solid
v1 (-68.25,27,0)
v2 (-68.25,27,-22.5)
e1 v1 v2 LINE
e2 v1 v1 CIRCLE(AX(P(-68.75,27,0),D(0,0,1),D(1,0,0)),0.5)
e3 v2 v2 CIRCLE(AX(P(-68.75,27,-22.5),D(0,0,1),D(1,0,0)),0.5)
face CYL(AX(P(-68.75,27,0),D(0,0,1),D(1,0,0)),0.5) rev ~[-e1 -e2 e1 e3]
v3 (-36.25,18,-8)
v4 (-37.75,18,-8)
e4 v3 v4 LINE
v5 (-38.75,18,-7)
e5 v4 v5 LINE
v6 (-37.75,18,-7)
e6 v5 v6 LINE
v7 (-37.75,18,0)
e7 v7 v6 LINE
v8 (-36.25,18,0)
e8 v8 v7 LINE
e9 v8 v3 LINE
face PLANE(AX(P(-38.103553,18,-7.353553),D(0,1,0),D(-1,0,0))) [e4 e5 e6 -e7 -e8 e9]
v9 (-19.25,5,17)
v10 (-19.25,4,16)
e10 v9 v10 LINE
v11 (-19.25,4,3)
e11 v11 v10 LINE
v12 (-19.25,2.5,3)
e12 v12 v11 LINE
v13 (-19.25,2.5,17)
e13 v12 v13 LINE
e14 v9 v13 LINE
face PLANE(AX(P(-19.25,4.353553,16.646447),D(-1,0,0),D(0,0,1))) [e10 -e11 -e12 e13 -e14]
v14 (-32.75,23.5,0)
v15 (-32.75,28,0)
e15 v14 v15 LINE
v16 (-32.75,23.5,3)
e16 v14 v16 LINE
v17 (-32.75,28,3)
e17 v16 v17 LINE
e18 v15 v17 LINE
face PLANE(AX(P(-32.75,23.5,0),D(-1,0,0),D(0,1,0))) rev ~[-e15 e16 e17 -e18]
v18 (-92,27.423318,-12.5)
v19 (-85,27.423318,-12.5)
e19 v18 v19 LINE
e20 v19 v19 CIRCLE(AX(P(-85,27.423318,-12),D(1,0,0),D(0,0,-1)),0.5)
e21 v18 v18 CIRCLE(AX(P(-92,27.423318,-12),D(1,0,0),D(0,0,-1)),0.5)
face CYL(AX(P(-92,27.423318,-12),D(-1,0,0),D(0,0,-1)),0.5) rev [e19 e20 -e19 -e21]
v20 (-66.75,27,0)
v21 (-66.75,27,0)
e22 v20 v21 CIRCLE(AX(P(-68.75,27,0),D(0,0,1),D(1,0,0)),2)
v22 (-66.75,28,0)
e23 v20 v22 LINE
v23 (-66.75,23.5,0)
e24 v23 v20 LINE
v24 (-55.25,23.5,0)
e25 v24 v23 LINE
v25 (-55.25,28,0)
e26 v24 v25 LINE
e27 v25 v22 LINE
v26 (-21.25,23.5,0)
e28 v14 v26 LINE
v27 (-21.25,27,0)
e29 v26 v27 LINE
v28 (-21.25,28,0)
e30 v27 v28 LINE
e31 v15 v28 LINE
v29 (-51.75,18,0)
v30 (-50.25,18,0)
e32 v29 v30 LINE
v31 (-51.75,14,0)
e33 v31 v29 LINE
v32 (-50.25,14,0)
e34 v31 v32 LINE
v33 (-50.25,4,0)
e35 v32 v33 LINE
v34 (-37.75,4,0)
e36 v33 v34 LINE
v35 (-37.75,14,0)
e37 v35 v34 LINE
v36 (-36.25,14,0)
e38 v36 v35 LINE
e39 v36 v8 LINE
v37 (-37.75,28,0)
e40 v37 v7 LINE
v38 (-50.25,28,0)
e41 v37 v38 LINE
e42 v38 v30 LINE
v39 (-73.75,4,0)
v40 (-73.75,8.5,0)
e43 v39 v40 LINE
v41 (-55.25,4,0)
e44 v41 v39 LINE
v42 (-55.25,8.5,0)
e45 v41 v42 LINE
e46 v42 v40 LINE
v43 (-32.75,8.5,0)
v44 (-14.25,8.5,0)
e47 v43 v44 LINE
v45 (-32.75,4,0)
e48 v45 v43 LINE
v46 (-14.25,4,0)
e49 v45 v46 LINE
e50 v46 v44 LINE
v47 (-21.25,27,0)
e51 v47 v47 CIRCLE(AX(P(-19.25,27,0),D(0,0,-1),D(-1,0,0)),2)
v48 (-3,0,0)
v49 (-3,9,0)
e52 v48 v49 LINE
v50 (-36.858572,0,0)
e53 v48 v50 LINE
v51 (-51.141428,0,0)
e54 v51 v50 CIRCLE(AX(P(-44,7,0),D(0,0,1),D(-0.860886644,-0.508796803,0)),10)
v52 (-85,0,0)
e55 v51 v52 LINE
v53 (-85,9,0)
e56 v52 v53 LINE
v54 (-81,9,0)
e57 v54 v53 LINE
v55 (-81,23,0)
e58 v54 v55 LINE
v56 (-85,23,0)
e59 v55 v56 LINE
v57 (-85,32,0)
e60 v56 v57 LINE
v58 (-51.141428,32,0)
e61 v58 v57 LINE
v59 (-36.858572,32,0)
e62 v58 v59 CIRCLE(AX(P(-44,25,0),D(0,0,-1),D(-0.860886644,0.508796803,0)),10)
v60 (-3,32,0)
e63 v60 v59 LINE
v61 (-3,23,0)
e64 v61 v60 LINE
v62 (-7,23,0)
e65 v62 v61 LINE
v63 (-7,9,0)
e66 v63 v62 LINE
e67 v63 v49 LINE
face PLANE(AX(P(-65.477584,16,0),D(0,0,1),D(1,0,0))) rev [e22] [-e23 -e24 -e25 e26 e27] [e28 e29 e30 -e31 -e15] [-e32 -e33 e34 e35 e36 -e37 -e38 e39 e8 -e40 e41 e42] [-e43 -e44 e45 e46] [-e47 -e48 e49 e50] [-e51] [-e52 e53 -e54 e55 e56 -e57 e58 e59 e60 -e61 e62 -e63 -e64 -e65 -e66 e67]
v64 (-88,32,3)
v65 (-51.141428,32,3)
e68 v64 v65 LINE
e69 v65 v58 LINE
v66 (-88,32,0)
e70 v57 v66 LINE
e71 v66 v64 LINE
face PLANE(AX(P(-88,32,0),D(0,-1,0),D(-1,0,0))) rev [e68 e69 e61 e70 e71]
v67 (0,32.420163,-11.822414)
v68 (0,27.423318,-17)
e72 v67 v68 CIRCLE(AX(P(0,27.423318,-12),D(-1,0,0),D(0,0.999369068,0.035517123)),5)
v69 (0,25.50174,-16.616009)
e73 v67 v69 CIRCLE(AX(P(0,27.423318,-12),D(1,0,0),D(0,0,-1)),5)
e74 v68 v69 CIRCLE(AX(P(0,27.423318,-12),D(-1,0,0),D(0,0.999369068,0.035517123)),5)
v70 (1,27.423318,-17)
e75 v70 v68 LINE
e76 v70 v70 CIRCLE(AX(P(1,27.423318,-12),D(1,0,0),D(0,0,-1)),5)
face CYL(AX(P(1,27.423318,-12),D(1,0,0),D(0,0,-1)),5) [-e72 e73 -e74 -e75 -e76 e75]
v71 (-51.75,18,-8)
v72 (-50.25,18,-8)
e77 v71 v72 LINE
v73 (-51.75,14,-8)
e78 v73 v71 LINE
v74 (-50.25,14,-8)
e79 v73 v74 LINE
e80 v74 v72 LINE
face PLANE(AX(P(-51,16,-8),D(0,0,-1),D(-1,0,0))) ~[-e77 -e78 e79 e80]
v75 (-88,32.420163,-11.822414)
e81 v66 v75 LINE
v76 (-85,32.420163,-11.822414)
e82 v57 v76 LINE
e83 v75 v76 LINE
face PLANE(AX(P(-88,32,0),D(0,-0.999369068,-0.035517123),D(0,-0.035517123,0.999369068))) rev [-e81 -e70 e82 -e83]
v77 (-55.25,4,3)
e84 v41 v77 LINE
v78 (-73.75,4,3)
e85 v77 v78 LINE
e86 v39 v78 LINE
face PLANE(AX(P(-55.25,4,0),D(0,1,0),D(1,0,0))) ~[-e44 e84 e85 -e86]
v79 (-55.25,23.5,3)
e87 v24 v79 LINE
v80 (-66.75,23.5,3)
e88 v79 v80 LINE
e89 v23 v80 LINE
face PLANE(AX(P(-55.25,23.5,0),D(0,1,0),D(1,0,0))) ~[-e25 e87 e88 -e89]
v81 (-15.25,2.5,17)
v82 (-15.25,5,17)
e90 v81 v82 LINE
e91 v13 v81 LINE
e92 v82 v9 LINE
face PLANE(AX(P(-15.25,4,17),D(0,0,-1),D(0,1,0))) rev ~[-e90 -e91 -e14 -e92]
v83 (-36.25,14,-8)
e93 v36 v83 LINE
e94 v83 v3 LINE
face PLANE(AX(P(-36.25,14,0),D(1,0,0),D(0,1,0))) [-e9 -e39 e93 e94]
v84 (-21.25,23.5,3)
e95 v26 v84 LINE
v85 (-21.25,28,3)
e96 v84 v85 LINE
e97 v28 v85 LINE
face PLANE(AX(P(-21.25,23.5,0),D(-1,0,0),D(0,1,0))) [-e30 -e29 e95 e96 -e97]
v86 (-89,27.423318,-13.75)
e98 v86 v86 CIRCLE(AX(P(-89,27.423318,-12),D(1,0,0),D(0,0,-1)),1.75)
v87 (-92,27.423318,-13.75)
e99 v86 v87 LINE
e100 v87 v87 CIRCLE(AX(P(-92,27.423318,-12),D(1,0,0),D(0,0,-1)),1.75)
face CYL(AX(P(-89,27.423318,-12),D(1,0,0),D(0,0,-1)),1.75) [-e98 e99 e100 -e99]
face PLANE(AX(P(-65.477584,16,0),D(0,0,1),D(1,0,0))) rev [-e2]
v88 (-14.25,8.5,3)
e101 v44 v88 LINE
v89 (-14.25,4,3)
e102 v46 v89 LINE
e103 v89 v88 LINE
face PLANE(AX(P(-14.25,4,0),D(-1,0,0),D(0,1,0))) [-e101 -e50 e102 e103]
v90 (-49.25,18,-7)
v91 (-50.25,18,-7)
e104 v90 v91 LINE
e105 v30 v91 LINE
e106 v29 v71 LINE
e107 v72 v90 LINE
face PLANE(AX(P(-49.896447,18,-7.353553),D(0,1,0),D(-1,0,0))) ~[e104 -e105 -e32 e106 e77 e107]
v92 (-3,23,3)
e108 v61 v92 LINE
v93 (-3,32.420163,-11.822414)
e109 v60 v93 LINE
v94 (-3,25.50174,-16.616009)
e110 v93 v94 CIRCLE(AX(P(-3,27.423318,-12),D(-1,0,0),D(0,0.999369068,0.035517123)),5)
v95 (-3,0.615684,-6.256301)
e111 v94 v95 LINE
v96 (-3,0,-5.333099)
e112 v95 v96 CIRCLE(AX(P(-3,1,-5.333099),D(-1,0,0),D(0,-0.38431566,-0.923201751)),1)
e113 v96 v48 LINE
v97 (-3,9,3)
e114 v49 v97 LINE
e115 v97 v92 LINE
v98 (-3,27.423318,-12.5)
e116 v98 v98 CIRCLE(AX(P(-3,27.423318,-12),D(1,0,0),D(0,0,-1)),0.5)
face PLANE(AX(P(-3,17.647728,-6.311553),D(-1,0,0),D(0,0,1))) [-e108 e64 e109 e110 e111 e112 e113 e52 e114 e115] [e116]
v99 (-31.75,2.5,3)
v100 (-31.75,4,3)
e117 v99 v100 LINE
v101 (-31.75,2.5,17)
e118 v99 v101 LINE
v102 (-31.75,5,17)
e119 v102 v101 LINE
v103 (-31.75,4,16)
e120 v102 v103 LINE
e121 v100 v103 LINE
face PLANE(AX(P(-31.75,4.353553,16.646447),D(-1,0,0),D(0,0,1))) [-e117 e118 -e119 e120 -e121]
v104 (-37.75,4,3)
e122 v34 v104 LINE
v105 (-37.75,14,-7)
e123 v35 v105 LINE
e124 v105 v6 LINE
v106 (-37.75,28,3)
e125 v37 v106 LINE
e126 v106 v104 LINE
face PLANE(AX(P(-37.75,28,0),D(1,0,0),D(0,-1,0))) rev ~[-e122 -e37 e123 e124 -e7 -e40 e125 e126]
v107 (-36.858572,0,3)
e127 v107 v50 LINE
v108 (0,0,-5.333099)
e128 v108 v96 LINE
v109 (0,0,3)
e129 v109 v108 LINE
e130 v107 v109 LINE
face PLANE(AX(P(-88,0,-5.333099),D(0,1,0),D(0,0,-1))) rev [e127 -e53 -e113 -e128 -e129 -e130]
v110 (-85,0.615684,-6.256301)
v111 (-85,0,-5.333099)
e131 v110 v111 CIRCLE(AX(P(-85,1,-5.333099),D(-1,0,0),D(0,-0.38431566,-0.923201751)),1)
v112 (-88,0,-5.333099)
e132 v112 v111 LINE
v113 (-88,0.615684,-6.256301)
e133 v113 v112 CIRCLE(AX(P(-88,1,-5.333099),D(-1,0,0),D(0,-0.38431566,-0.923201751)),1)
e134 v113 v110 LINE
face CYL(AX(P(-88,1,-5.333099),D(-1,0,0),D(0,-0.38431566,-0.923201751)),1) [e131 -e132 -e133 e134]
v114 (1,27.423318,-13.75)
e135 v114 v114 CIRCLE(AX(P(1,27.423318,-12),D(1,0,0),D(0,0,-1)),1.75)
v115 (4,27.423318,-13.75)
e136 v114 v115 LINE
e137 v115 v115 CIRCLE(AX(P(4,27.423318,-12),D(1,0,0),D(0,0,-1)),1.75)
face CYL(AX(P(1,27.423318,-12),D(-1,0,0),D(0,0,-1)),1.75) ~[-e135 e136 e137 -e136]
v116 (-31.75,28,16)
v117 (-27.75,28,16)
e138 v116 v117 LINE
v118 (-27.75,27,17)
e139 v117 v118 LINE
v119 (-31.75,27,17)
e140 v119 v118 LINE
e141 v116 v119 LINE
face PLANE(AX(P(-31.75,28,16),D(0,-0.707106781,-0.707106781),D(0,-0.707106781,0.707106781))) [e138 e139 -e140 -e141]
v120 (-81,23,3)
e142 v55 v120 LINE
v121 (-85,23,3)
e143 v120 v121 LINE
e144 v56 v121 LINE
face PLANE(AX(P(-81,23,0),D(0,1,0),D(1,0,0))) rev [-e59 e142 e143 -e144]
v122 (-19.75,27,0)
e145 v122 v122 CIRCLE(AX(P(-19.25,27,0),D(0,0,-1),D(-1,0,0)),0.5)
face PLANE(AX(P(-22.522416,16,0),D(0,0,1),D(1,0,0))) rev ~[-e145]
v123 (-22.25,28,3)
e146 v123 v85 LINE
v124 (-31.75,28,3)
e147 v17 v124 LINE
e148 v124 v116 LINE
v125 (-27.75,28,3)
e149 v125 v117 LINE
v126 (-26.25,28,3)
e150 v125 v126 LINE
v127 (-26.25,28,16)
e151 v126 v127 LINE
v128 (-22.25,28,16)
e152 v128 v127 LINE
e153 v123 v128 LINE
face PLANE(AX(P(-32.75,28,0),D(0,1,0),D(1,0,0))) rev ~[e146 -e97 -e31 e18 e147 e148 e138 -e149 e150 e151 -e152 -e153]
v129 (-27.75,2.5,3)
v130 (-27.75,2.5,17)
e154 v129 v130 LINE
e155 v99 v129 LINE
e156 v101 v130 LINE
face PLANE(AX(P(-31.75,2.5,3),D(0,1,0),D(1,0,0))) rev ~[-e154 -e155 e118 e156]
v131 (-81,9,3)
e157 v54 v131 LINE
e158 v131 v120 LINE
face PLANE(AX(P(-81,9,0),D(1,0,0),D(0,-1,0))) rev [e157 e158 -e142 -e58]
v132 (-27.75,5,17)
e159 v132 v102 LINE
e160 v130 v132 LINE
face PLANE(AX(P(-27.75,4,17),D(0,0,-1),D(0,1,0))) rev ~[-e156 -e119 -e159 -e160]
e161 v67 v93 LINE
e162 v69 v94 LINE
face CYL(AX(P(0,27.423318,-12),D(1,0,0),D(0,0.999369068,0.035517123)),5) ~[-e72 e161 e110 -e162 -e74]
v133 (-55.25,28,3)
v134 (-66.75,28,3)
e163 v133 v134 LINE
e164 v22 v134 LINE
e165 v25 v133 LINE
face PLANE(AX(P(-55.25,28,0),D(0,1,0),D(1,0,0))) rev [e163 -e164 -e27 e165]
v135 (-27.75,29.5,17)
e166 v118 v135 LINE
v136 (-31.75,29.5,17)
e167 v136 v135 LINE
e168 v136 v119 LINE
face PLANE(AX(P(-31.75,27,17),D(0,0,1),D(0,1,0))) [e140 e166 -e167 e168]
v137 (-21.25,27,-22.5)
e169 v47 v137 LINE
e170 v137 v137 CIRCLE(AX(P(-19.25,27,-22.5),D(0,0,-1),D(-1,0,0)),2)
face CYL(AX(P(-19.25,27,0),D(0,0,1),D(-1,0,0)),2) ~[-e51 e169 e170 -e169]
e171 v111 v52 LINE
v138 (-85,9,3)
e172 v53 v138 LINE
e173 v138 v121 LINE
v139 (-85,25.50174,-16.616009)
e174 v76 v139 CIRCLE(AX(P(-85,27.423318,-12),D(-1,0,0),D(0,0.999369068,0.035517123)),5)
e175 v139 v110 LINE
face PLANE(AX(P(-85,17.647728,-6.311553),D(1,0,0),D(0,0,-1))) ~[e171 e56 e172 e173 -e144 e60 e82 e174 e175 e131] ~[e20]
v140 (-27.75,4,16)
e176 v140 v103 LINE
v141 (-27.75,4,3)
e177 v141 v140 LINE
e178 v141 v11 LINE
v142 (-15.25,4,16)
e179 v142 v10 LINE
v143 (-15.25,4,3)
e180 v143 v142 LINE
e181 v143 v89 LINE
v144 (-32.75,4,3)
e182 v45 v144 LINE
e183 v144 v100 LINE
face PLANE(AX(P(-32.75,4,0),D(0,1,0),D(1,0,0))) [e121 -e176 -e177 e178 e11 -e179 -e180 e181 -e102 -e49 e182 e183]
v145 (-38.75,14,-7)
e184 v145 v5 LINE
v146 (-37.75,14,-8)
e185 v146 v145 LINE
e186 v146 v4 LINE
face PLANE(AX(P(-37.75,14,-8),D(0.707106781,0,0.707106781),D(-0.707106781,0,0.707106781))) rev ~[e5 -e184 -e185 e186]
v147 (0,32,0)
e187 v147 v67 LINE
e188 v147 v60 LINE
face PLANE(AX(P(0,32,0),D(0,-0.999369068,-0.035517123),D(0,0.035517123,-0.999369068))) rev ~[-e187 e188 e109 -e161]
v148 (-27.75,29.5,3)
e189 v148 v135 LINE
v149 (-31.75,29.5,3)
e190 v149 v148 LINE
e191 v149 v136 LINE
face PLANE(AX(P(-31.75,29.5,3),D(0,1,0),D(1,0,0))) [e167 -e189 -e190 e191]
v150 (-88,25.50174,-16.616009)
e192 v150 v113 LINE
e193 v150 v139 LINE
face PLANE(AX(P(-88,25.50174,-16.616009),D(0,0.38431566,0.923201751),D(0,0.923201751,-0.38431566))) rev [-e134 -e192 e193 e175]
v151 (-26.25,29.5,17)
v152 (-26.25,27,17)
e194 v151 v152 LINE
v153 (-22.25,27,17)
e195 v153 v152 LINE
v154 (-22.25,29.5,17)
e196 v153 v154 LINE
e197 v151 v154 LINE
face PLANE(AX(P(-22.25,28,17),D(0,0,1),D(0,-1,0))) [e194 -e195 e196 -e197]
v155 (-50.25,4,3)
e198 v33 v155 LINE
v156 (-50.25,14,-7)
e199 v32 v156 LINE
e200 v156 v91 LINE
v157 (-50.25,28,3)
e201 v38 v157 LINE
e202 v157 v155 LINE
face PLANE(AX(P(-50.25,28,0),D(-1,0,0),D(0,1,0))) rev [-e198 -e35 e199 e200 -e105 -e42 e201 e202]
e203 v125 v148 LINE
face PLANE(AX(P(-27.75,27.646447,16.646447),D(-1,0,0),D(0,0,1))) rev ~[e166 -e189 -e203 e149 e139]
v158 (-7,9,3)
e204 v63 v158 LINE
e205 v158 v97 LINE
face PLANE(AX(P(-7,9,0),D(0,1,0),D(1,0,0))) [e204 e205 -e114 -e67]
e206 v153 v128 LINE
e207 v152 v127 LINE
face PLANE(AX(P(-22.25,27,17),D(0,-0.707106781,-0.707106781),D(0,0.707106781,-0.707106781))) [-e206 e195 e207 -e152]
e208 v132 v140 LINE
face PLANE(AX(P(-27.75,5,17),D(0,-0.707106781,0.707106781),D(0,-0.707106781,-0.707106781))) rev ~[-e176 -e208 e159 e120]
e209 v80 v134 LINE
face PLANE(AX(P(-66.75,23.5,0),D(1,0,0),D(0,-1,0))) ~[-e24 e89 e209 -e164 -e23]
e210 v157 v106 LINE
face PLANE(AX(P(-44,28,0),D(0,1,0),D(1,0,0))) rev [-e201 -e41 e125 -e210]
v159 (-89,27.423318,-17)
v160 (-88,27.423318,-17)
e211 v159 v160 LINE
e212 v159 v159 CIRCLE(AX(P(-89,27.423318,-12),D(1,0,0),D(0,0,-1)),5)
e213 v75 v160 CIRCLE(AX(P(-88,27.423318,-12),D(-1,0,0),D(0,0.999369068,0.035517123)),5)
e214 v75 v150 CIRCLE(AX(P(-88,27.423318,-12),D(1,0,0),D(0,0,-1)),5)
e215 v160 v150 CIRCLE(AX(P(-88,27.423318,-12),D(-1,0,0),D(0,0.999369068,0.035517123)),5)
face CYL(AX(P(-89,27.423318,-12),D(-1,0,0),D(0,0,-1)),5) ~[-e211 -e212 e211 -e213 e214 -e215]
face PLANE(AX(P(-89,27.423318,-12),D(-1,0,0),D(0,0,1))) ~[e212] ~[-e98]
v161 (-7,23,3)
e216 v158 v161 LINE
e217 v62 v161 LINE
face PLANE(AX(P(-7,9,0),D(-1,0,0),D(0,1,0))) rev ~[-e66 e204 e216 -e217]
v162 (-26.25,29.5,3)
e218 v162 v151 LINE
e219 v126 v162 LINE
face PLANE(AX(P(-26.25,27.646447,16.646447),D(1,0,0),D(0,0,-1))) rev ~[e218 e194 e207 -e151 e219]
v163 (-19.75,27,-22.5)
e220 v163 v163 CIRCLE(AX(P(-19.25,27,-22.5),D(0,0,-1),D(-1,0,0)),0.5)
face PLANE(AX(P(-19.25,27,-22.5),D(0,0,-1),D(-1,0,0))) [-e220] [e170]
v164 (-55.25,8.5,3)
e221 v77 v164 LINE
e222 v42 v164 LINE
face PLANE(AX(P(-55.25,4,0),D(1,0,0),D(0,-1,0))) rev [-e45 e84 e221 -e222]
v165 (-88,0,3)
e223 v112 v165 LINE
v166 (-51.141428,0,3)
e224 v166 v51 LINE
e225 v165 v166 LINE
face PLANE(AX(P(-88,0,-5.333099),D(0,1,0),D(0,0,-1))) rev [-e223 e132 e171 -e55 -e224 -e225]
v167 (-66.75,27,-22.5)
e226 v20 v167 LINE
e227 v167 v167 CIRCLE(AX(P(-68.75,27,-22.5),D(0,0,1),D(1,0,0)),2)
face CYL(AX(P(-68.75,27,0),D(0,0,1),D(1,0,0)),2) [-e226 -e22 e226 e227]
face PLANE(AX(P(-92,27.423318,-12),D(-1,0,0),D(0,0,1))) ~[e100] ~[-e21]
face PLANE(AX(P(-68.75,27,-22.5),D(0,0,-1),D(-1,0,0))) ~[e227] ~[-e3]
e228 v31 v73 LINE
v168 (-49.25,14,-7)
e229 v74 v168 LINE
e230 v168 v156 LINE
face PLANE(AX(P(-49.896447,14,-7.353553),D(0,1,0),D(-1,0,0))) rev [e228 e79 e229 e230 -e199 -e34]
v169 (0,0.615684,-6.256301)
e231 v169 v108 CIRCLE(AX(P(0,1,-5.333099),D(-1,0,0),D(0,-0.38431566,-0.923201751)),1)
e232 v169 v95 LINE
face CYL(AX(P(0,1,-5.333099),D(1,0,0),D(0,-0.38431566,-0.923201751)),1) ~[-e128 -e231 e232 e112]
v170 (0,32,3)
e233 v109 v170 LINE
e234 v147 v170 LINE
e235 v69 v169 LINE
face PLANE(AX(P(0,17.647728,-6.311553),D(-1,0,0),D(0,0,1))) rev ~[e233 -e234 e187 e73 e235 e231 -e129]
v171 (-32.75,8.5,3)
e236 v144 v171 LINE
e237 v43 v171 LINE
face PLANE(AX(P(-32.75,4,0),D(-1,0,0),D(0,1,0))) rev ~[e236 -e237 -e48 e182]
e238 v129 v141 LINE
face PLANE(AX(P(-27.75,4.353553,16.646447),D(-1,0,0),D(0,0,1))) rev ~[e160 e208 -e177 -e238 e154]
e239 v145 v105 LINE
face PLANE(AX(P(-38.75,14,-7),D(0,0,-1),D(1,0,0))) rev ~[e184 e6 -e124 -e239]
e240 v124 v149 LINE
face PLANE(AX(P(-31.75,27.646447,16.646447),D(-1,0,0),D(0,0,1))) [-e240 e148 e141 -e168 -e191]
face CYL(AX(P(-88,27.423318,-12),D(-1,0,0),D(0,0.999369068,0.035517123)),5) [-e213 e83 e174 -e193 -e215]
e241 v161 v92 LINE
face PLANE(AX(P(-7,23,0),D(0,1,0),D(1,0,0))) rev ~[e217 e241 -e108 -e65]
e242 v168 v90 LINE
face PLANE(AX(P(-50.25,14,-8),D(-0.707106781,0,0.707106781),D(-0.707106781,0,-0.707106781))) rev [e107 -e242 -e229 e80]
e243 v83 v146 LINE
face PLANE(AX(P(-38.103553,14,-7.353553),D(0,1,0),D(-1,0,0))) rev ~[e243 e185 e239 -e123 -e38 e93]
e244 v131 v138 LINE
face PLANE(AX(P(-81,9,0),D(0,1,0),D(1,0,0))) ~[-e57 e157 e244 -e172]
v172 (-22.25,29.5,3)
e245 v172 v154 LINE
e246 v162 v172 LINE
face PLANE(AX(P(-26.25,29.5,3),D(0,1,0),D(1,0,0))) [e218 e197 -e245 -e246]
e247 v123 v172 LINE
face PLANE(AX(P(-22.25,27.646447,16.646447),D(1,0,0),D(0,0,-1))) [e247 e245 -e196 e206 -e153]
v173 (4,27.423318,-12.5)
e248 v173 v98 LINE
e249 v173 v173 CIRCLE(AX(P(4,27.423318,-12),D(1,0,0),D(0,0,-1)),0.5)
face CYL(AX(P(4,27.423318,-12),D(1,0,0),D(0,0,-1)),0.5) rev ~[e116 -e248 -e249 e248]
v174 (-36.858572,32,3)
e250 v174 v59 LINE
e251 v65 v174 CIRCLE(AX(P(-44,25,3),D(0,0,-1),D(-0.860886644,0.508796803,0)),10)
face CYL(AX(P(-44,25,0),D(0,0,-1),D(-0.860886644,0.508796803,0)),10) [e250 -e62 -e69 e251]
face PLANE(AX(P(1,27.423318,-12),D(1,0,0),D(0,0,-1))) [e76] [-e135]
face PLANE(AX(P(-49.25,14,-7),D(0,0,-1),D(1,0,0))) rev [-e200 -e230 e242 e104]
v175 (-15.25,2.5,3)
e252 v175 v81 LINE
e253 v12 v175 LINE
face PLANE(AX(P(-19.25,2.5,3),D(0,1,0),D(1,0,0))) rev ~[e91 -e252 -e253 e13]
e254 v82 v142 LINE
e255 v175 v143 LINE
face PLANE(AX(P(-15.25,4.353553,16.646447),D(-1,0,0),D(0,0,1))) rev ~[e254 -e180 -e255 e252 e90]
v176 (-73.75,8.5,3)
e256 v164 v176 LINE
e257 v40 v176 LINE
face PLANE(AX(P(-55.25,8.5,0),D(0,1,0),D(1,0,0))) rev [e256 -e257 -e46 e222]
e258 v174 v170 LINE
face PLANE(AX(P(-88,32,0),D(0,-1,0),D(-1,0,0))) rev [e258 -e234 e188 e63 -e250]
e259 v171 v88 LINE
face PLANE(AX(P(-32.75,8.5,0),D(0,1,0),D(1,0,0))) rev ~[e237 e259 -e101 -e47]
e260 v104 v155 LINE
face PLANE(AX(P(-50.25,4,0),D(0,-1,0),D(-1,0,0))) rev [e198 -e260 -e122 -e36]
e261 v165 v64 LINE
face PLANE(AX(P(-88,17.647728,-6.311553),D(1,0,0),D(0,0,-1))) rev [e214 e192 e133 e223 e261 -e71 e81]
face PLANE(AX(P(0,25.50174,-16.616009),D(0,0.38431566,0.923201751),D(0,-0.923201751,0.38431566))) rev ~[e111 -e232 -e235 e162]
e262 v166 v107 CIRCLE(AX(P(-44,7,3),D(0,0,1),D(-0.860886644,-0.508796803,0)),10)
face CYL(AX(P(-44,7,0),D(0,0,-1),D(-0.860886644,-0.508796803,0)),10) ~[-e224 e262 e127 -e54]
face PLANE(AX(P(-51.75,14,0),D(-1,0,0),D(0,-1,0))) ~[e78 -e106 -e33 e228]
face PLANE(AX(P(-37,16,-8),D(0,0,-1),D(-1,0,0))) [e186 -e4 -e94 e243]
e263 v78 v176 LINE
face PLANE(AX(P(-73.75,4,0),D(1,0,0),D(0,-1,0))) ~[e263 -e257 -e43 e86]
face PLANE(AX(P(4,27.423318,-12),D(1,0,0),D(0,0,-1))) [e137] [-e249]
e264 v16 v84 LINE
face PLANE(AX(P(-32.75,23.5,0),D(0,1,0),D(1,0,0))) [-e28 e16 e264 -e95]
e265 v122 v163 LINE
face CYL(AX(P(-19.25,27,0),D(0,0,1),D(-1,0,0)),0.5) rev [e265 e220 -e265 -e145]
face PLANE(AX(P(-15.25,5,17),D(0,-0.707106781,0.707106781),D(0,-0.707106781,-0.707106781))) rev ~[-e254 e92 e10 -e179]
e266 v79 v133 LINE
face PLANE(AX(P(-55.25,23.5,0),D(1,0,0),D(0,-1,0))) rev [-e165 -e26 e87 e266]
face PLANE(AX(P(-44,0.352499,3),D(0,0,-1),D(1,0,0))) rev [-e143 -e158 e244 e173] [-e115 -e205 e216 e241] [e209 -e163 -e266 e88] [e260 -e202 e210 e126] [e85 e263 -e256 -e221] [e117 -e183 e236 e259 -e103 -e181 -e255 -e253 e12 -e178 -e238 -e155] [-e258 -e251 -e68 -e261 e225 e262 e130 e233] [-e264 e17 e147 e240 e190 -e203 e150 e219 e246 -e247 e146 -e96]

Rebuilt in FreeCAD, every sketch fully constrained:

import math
import FreeCAD as App
import Part
import Sketcher
from FreeCAD import Vector
Q = App.Units.Quantity

doc = App.newDocument("Part")
body = doc.addObject("PartDesign::Body", "Body")

# Sketch on XY plane
sketch1 = body.newObject("Sketcher::SketchObject", "Sketch")
sketch1.AttachmentSupport = (doc.getObject("XY_Plane"), [""])
sketch1.MapMode = "FlatFace"
sketch1.addGeometry(Part.LineSegment(Vector(-44, 32, 0), Vector(-44, 28, 0)), False)
sketch1.addGeometry(Part.LineSegment(Vector(-44, 28, 0), Vector(-37.75, 28, 0)), False)
sketch1.addGeometry(Part.LineSegment(Vector(-37.75, 28, 0), Vector(-37.75, 4, 0)), False)
sketch1.addGeometry(Part.LineSegment(Vector(-37.75, 4, 0), Vector(-44, 4, 0)), False)
sketch1.addGeometry(Part.LineSegment(Vector(-44, 4, 0), Vector(-44, 0, 0)), False)
sketch1.addGeometry(Part.LineSegment(Vector(-44, 0, 0), Vector(0, 0, 0)), False)
sketch1.addGeometry(Part.LineSegment(Vector(0, 0, 0), Vector(0, 32, 0)), False)
sketch1.addGeometry(Part.LineSegment(Vector(0, 32, 0), Vector(-44, 32, 0)), False)
sketch1.addGeometry(Part.LineSegment(Vector(-14.25, 4, 0), Vector(-32.75, 4, 0)), False)
sketch1.addGeometry(Part.LineSegment(Vector(-32.75, 4, 0), Vector(-32.75, 8.5, 0)), False)
sketch1.addGeometry(Part.LineSegment(Vector(-32.75, 8.5, 0), Vector(-14.25, 8.5, 0)), False)
sketch1.addGeometry(Part.LineSegment(Vector(-14.25, 8.5, 0), Vector(-14.25, 4, 0)), False)
sketch1.addGeometry(Part.LineSegment(Vector(-21.25, 23.5, 0), Vector(-32.75, 23.5, 0)), False)
sketch1.addGeometry(Part.LineSegment(Vector(-32.75, 23.5, 0), Vector(-32.75, 28, 0)), False)
sketch1.addGeometry(Part.LineSegment(Vector(-32.75, 28, 0), Vector(-21.25, 28, 0)), False)
sketch1.addGeometry(Part.LineSegment(Vector(-21.25, 28, 0), Vector(-21.25, 23.5, 0)), False)
sketch1.addGeometry(Part.LineSegment(Vector(-3, 9, 0), Vector(-7, 9, 0)), False)
sketch1.addGeometry(Part.LineSegment(Vector(-7, 9, 0), Vector(-7, 23, 0)), False)
sketch1.addGeometry(Part.LineSegment(Vector(-7, 23, 0), Vector(-3, 23, 0)), False)
sketch1.addGeometry(Part.LineSegment(Vector(-3, 23, 0), Vector(-3, 9, 0)), False)
sketch1.addConstraint(Sketcher.Constraint("Coincident", 0, 2, 1, 1))
sketch1.addConstraint(Sketcher.Constraint("Coincident", 1, 2, 2, 1))
sketch1.addConstraint(Sketcher.Constraint("Coincident", 2, 2, 3, 1))
sketch1.addConstraint(Sketcher.Constraint("Coincident", 3, 2, 4, 1))
sketch1.addConstraint(Sketcher.Constraint("Coincident", 4, 2, 5, 1))
sketch1.addConstraint(Sketcher.Constraint("Coincident", 5, 2, 6, 1))
sketch1.addConstraint(Sketcher.Constraint("Coincident", 6, 2, 7, 1))
sketch1.addConstraint(Sketcher.Constraint("Coincident", 7, 2, 0, 1))
sketch1.addConstraint(Sketcher.Constraint("Coincident", 8, 2, 9, 1))
sketch1.addConstraint(Sketcher.Constraint("Coincident", 9, 2, 10, 1))
sketch1.addConstraint(Sketcher.Constraint("Coincident", 10, 2, 11, 1))
sketch1.addConstraint(Sketcher.Constraint("Coincident", 11, 2, 8, 1))
sketch1.addConstraint(Sketcher.Constraint("Coincident", 12, 2, 13, 1))
sketch1.addConstraint(Sketcher.Constraint("Coincident", 13, 2, 14, 1))
sketch1.addConstraint(Sketcher.Constraint("Coincident", 14, 2, 15, 1))
sketch1.addConstraint(Sketcher.Constraint("Coincident", 15, 2, 12, 1))
sketch1.addConstraint(Sketcher.Constraint("Coincident", 16, 2, 17, 1))
sketch1.addConstraint(Sketcher.Constraint("Coincident", 17, 2, 18, 1))
sketch1.addConstraint(Sketcher.Constraint("Coincident", 18, 2, 19, 1))
sketch1.addConstraint(Sketcher.Constraint("Coincident", 19, 2, 16, 1))
sketch1.addConstraint(Sketcher.Constraint("Vertical", 0))
sketch1.addConstraint(Sketcher.Constraint("Horizontal", 1))
sketch1.addConstraint(Sketcher.Constraint("Vertical", 2))
sketch1.addConstraint(Sketcher.Constraint("Horizontal", 3))
sketch1.addConstraint(Sketcher.Constraint("Vertical", 4))
sketch1.addConstraint(Sketcher.Constraint("Horizontal", 5))
sketch1.addConstraint(Sketcher.Constraint("Vertical", 6))
sketch1.addConstraint(Sketcher.Constraint("Horizontal", 7))
sketch1.addConstraint(Sketcher.Constraint("Horizontal", 8))
sketch1.addConstraint(Sketcher.Constraint("Vertical", 9))
sketch1.addConstraint(Sketcher.Constraint("Horizontal", 10))
sketch1.addConstraint(Sketcher.Constraint("Vertical", 11))
sketch1.addConstraint(Sketcher.Constraint("Horizontal", 12))
sketch1.addConstraint(Sketcher.Constraint("Vertical", 13))
sketch1.addConstraint(Sketcher.Constraint("Horizontal", 14))
sketch1.addConstraint(Sketcher.Constraint("Vertical", 15))
sketch1.addConstraint(Sketcher.Constraint("Horizontal", 16))
sketch1.addConstraint(Sketcher.Constraint("Vertical", 17))
sketch1.addConstraint(Sketcher.Constraint("Horizontal", 18))
sketch1.addConstraint(Sketcher.Constraint("Vertical", 19))
sketch1.addConstraint(Sketcher.Constraint("Coincident", 5, 2, -1, 1))
sketch1.addConstraint(Sketcher.Constraint("Horizontal", 3, 2, 8, 2))
sketch1.addConstraint(Sketcher.Constraint("Horizontal", 1, 2, 13, 2))
sketch1.addConstraint(Sketcher.Constraint("Vertical", 0, 2, 3, 2))
sketch1.addConstraint(Sketcher.Constraint("Vertical", 9, 2, 12, 2))
sketch1.addConstraint(Sketcher.Constraint("Equal", 18, 0))
sketch1.addConstraint(Sketcher.Constraint("Equal", 0, 4))
sketch1.addConstraint(Sketcher.Constraint("Equal", 11, 13))
sketch1.addConstraint(Sketcher.Constraint("DistanceX", 5, 1, 5, 2, Q("44 mm")))
sketch1.addConstraint(Sketcher.Constraint("DistanceX", 16, 2, 16, 1, Q("4 mm")))
sketch1.addConstraint(Sketcher.Constraint("DistanceY", 2, 2, 2, 1, Q("24 mm")))
sketch1.addConstraint(Sketcher.Constraint("DistanceY", 17, 1, 17, 2, Q("14 mm")))
sketch1.addConstraint(Sketcher.Constraint("DistanceX", 8, 2, 8, 1, Q("18.5 mm")))
sketch1.addConstraint(Sketcher.Constraint("DistanceX", 12, 2, 12, 1, Q("11.5 mm")))
sketch1.addConstraint(Sketcher.Constraint("DistanceY", 9, 1, 9, 2, Q("4.5 mm")))
sketch1.addConstraint(Sketcher.Constraint("DistanceX", 16, 2, -1, 1, Q("7 mm")))
sketch1.addConstraint(Sketcher.Constraint("DistanceY", -1, 1, 16, 2, Q("9 mm")))
sketch1.addConstraint(Sketcher.Constraint("DistanceX", 2, 2, 8, 2, Q("5 mm")))
sketch1.addConstraint(Sketcher.Constraint("DistanceX", 1, 1, 1, 2, Q("6.25 mm")))
pad1 = body.newObject("PartDesign::Pad", "Pad")
pad1.Profile = sketch1
pad1.Length = 3

# Sketch on YZ plane
sketch2 = body.newObject("Sketcher::SketchObject", "Sketch001")
sketch2.AttachmentSupport = (doc.getObject("YZ_Plane"), [""])
sketch2.MapMode = "FlatFace"
sketch2.addGeometry(Part.LineSegment(Vector(32.420163, -11.822414, 0), Vector(32, 0, 0)), False)
sketch2.addGeometry(Part.LineSegment(Vector(32, 0, 0), Vector(0, 0, 0)), False)
sketch2.addGeometry(Part.LineSegment(Vector(0, 0, 0), Vector(0, -5.333099, 0)), False)
sketch2.addGeometry(Part.ArcOfCircle(Part.Circle(Vector(1, -5.333099, 0), Vector(0, 0, 1), 1), math.radians(-180), math.radians(-112.601262)), False)
sketch2.addGeometry(Part.LineSegment(Vector(0.615684, -6.256301, 0), Vector(25.50174, -16.616009, 0)), False)
sketch2.addGeometry(Part.ArcOfCircle(Part.Circle(Vector(27.423318, -12, 0), Vector(0, 0, 1), 5), math.radians(-112.601262), math.radians(2.035409)), False)
sketch2.addConstraint(Sketcher.Constraint("Coincident", 0, 2, 1, 1))
sketch2.addConstraint(Sketcher.Constraint("Coincident", 1, 2, 2, 1))
sketch2.addConstraint(Sketcher.Constraint("Coincident", 2, 2, 3, 1))
sketch2.addConstraint(Sketcher.Constraint("Coincident", 3, 2, 4, 1))
sketch2.addConstraint(Sketcher.Constraint("Coincident", 4, 2, 5, 1))
sketch2.addConstraint(Sketcher.Constraint("Coincident", 5, 2, 0, 1))
sketch2.addConstraint(Sketcher.Constraint("Horizontal", 1))
sketch2.addConstraint(Sketcher.Constraint("Vertical", 2))
sketch2.addConstraint(Sketcher.Constraint("Coincident", 1, 2, -1, 1))
sketch2.addConstraint(Sketcher.Constraint("Radius", 3, Q("1 mm")))
sketch2.addConstraint(Sketcher.Constraint("Radius", 5, Q("5 mm")))
sketch2.addConstraint(Sketcher.Constraint("DistanceX", 1, 2, 1, 1, Q("32 mm")))
sketch2.addConstraint(Sketcher.Constraint("DistanceY", 5, 3, -1, 1, Q("12 mm")))
sketch2.addConstraint(Sketcher.Constraint("DistanceY", 2, 2, 2, 1, Q("5.333099 mm")))
sketch2.addConstraint(Sketcher.Constraint("DistanceY", 3, 3, -1, 1, Q("5.333099 mm")))
sketch2.addConstraint(Sketcher.Constraint("DistanceY", 3, 2, -1, 1, Q("6.256301 mm")))
sketch2.addConstraint(Sketcher.Constraint("Distance", 0, Q("11.829878 mm")))
sketch2.addConstraint(Sketcher.Constraint("DistanceX", -1, 1, 4, 2, Q("25.50174 mm")))
sketch2.addConstraint(Sketcher.Constraint("DistanceY", 4, 2, -1, 1, Q("16.616009 mm")))
pad2 = body.newObject("PartDesign::Pad", "Pad001")
pad2.Profile = sketch2
pad2.Length = 3
pad2.Reversed = True

# Sketch on XY plane
sketch3 = body.newObject("Sketcher::SketchObject", "Sketch002")
sketch3.AttachmentSupport = (doc.getObject("XY_Plane"), [""])
sketch3.MapMode = "FlatFace"
sketch3.addGeometry(Part.Circle(Vector(-19.25, 27, 0), Vector(0, 0, 1), 2), False)
sketch3.addGeometry(Part.Circle(Vector(-19.25, 27, 0), Vector(0, 0, 1), 0.5), False)
sketch3.addConstraint(Sketcher.Constraint("Coincident", 1, 3, 0, 3))
sketch3.addConstraint(Sketcher.Constraint("Diameter", 0, Q("4 mm")))
sketch3.addConstraint(Sketcher.Constraint("Diameter", 1, Q("1 mm")))
sketch3.addConstraint(Sketcher.Constraint("DistanceY", -1, 1, 0, 3, Q("27 mm")))
sketch3.addConstraint(Sketcher.Constraint("DistanceX", 0, 3, -1, 1, Q("19.25 mm")))
pad3 = body.newObject("PartDesign::Pad", "Pad002")
pad3.Profile = sketch3
pad3.Length = 22.5
pad3.Reversed = True

# Sketch on YZ plane
sketch4 = body.newObject("Sketcher::SketchObject", "Sketch003")
sketch4.AttachmentSupport = (doc.getObject("YZ_Plane"), [""])
sketch4.MapMode = "FlatFace"
sketch4.AttachmentOffset = App.Placement(Vector(0, 0, 1), App.Rotation())
sketch4.addGeometry(Part.Circle(Vector(27.423318, -12, 0), Vector(0, 0, 1), 5), False)
sketch4.addConstraint(Sketcher.Constraint("Diameter", 0, Q("10 mm")))
sketch4.addConstraint(Sketcher.Constraint("DistanceY", 0, 3, -1, 1, Q("12 mm")))
sketch4.addConstraint(Sketcher.Constraint("DistanceX", -1, 1, 0, 3, Q("27.423318 mm")))
pad4 = body.newObject("PartDesign::Pad", "Pad003")
pad4.Profile = sketch4
pad4.Length = 1
pad4.Reversed = True

# Sketch on YZ plane
sketch5 = body.newObject("Sketcher::SketchObject", "Sketch004")
sketch5.AttachmentSupport = (doc.getObject("YZ_Plane"), [""])
sketch5.MapMode = "FlatFace"
sketch5.AttachmentOffset = App.Placement(Vector(0, 0, 1), App.Rotation())
sketch5.addGeometry(Part.Circle(Vector(27.423318, -12, 0), Vector(0, 0, 1), 1.75), False)
sketch5.addConstraint(Sketcher.Constraint("Diameter", 0, Q("3.5 mm")))
sketch5.addConstraint(Sketcher.Constraint("DistanceY", 0, 3, -1, 1, Q("12 mm")))
sketch5.addConstraint(Sketcher.Constraint("DistanceX", -1, 1, 0, 3, Q("27.423318 mm")))
pad5 = body.newObject("PartDesign::Pad", "Pad004")
pad5.Profile = sketch5
pad5.Length = 3

# Sketch on YZ plane
sketch6 = body.newObject("Sketcher::SketchObject", "Sketch005")
sketch6.AttachmentSupport = (doc.getObject("YZ_Plane"), [""])
sketch6.MapMode = "FlatFace"
sketch6.AttachmentOffset = App.Placement(Vector(0, 0, 4), App.Rotation())
sketch6.addGeometry(Part.Circle(Vector(27.423318, -12, 0), Vector(0, 0, 1), 0.5), False)
sketch6.addConstraint(Sketcher.Constraint("Diameter", 0, Q("1 mm")))
sketch6.addConstraint(Sketcher.Constraint("DistanceY", 0, 3, -1, 1, Q("12 mm")))
sketch6.addConstraint(Sketcher.Constraint("DistanceX", -1, 1, 0, 3, Q("27.423318 mm")))
pocket1 = body.newObject("PartDesign::Pocket", "Pocket")
pocket1.Profile = sketch6
pocket1.Length = 7

# Sketch on XY plane
sketch7 = body.newObject("Sketcher::SketchObject", "Sketch006")
sketch7.AttachmentSupport = (doc.getObject("XY_Plane"), [""])
sketch7.MapMode = "FlatFace"
sketch7.addGeometry(Part.LineSegment(Vector(-36.25, 18, 0), Vector(-36.25, 14, 0)), False)
sketch7.addGeometry(Part.LineSegment(Vector(-36.25, 14, 0), Vector(-37.75, 14, 0)), False)
sketch7.addGeometry(Part.LineSegment(Vector(-37.75, 14, 0), Vector(-37.75, 18, 0)), False)
sketch7.addGeometry(Part.LineSegment(Vector(-37.75, 18, 0), Vector(-36.25, 18, 0)), False)
sketch7.addConstraint(Sketcher.Constraint("Coincident", 0, 2, 1, 1))
sketch7.addConstraint(Sketcher.Constraint("Coincident", 1, 2, 2, 1))
sketch7.addConstraint(Sketcher.Constraint("Coincident", 2, 2, 3, 1))
sketch7.addConstraint(Sketcher.Constraint("Coincident", 3, 2, 0, 1))
sketch7.addConstraint(Sketcher.Constraint("Vertical", 0))
sketch7.addConstraint(Sketcher.Constraint("Horizontal", 1))
sketch7.addConstraint(Sketcher.Constraint("Vertical", 2))
sketch7.addConstraint(Sketcher.Constraint("Horizontal", 3))
sketch7.addConstraint(Sketcher.Constraint("DistanceY", 0, 2, 0, 1, Q("4 mm")))
sketch7.addConstraint(Sketcher.Constraint("DistanceX", 1, 2, 1, 1, Q("1.5 mm")))
sketch7.addConstraint(Sketcher.Constraint("DistanceY", -1, 1, 0, 2, Q("14 mm")))
sketch7.addConstraint(Sketcher.Constraint("DistanceX", 0, 2, -1, 1, Q("36.25 mm")))
pad6 = body.newObject("PartDesign::Pad", "Pad005")
pad6.Profile = sketch7
pad6.Length = 8
pad6.Reversed = True

# Sketch on XZ plane
sketch8 = body.newObject("Sketcher::SketchObject", "Sketch007")
sketch8.AttachmentSupport = (doc.getObject("XZ_Plane"), [""])
sketch8.MapMode = "FlatFace"
sketch8.AttachmentOffset = App.Placement(Vector(0, 0, -14), App.Rotation())
sketch8.addGeometry(Part.LineSegment(Vector(-38.75, -7, 0), Vector(-37.75, -8, 0)), False)
sketch8.addGeometry(Part.LineSegment(Vector(-37.75, -8, 0), Vector(-37.75, -7, 0)), False)
sketch8.addGeometry(Part.LineSegment(Vector(-37.75, -7, 0), Vector(-38.75, -7, 0)), False)
sketch8.addConstraint(Sketcher.Constraint("Coincident", 0, 2, 1, 1))
sketch8.addConstraint(Sketcher.Constraint("Coincident", 1, 2, 2, 1))
sketch8.addConstraint(Sketcher.Constraint("Coincident", 2, 2, 0, 1))
sketch8.addConstraint(Sketcher.Constraint("Vertical", 1))
sketch8.addConstraint(Sketcher.Constraint("Horizontal", 2))
sketch8.addConstraint(Sketcher.Constraint("Equal", 2, 1))
sketch8.addConstraint(Sketcher.Constraint("DistanceX", 2, 2, 2, 1, Q("1 mm")))
sketch8.addConstraint(Sketcher.Constraint("DistanceY", 0, 2, -1, 1, Q("8 mm")))
sketch8.addConstraint(Sketcher.Constraint("DistanceX", 0, 2, -1, 1, Q("37.75 mm")))
pad7 = body.newObject("PartDesign::Pad", "Pad006")
pad7.Profile = sketch8
pad7.Length = 4
pad7.Reversed = True
doc.recompute()

datumplane = body.newObject("PartDesign::Plane", "DatumPlane")
datumplane.AttachmentSupport = (doc.getObject("YZ_Plane"), [""])
datumplane.MapMode = "FlatFace"
datumplane.AttachmentOffset = App.Placement(Vector(0, 0, -44), App.Rotation())
mirrored = body.newObject("PartDesign::Mirrored", "Mirrored")
mirrored.Originals = [pad1, pad2, pad3, pad4, pad5, pocket1, pad6, pad7]
mirrored.MirrorPlane = (datumplane, [""])
body.Tip = mirrored

# Sketch on XY plane
sketch9 = body.newObject("Sketcher::SketchObject", "Sketch008")
sketch9.AttachmentSupport = (doc.getObject("XY_Plane"), [""])
sketch9.MapMode = "FlatFace"
sketch9.addGeometry(Part.LineSegment(Vector(-35.391134, 30.087968, 0), Vector(-52.608866, 30.087968, 0)), False)
sketch9.addGeometry(Part.ArcOfCircle(Part.Circle(Vector(-44, 25, 0), Vector(0, 0, 1), 10), math.radians(30.583719), math.radians(149.416281)), False)
sketch9.addConstraint(Sketcher.Constraint("Coincident", 0, 1, 1, 1))
sketch9.addConstraint(Sketcher.Constraint("Coincident", 1, 2, 0, 2))
sketch9.addConstraint(Sketcher.Constraint("Horizontal", 0))
sketch9.addConstraint(Sketcher.Constraint("Radius", 1, Q("10 mm")))
sketch9.addConstraint(Sketcher.Constraint("DistanceX", 1, 3, -1, 1, Q("44 mm")))
sketch9.addConstraint(Sketcher.Constraint("DistanceY", -1, 1, 1, 3, Q("25 mm")))
sketch9.addConstraint(Sketcher.Constraint("DistanceX", 0, 2, 0, 1, Q("17.217733 mm")))
pad8 = body.newObject("PartDesign::Pad", "Pad007")
pad8.Profile = sketch9
pad8.Length = 3
doc.recompute()

datumplane2 = body.newObject("PartDesign::Plane", "DatumPlane001")
datumplane2.AttachmentSupport = (doc.getObject("XZ_Plane"), [""])
datumplane2.MapMode = "FlatFace"
datumplane2.AttachmentOffset = App.Placement(Vector(0, 0, -16), App.Rotation())
mirrored2 = body.newObject("PartDesign::Mirrored", "Mirrored001")
mirrored2.Originals = [pad8]
mirrored2.MirrorPlane = (datumplane2, [""])
body.Tip = mirrored2

# Sketch on XY plane
sketch10 = body.newObject("Sketcher::SketchObject", "Sketch009")
sketch10.AttachmentSupport = (doc.getObject("XY_Plane"), [""])
sketch10.MapMode = "FlatFace"
sketch10.AttachmentOffset = App.Placement(Vector(0, 0, 3), App.Rotation())
sketch10.addGeometry(Part.LineSegment(Vector(-31.75, 29.5, 0), Vector(-31.75, 28, 0)), False)
sketch10.addGeometry(Part.LineSegment(Vector(-31.75, 28, 0), Vector(-27.75, 28, 0)), False)
sketch10.addGeometry(Part.LineSegment(Vector(-27.75, 28, 0), Vector(-27.75, 29.5, 0)), False)
sketch10.addGeometry(Part.LineSegment(Vector(-27.75, 29.5, 0), Vector(-31.75, 29.5, 0)), False)
sketch10.addGeometry(Part.LineSegment(Vector(-26.25, 29.5, 0), Vector(-26.25, 28, 0)), False)
sketch10.addGeometry(Part.LineSegment(Vector(-26.25, 28, 0), Vector(-22.25, 28, 0)), False)
sketch10.addGeometry(Part.LineSegment(Vector(-22.25, 28, 0), Vector(-22.25, 29.5, 0)), False)
sketch10.addGeometry(Part.LineSegment(Vector(-22.25, 29.5, 0), Vector(-26.25, 29.5, 0)), False)
sketch10.addGeometry(Part.LineSegment(Vector(-31.75, 4, 0), Vector(-31.75, 2.5, 0)), False)
sketch10.addGeometry(Part.LineSegment(Vector(-31.75, 2.5, 0), Vector(-27.75, 2.5, 0)), False)
sketch10.addGeometry(Part.LineSegment(Vector(-27.75, 2.5, 0), Vector(-27.75, 4, 0)), False)
sketch10.addGeometry(Part.LineSegment(Vector(-27.75, 4, 0), Vector(-31.75, 4, 0)), False)
sketch10.addGeometry(Part.LineSegment(Vector(-19.25, 4, 0), Vector(-19.25, 2.5, 0)), False)
sketch10.addGeometry(Part.LineSegment(Vector(-19.25, 2.5, 0), Vector(-15.25, 2.5, 0)), False)
sketch10.addGeometry(Part.LineSegment(Vector(-15.25, 2.5, 0), Vector(-15.25, 4, 0)), False)
sketch10.addGeometry(Part.LineSegment(Vector(-15.25, 4, 0), Vector(-19.25, 4, 0)), False)
sketch10.addConstraint(Sketcher.Constraint("Coincident", 0, 2, 1, 1))
sketch10.addConstraint(Sketcher.Constraint("Coincident", 1, 2, 2, 1))
sketch10.addConstraint(Sketcher.Constraint("Coincident", 2, 2, 3, 1))
sketch10.addConstraint(Sketcher.Constraint("Coincident", 3, 2, 0, 1))
sketch10.addConstraint(Sketcher.Constraint("Coincident", 4, 2, 5, 1))
sketch10.addConstraint(Sketcher.Constraint("Coincident", 5, 2, 6, 1))
sketch10.addConstraint(Sketcher.Constraint("Coincident", 6, 2, 7, 1))
sketch10.addConstraint(Sketcher.Constraint("Coincident", 7, 2, 4, 1))
sketch10.addConstraint(Sketcher.Constraint("Coincident", 8, 2, 9, 1))
sketch10.addConstraint(Sketcher.Constraint("Coincident", 9, 2, 10, 1))
sketch10.addConstraint(Sketcher.Constraint("Coincident", 10, 2, 11, 1))
sketch10.addConstraint(Sketcher.Constraint("Coincident", 11, 2, 8, 1))
sketch10.addConstraint(Sketcher.Constraint("Coincident", 12, 2, 13, 1))
sketch10.addConstraint(Sketcher.Constraint("Coincident", 13, 2, 14, 1))
sketch10.addConstraint(Sketcher.Constraint("Coincident", 14, 2, 15, 1))
sketch10.addConstraint(Sketcher.Constraint("Coincident", 15, 2, 12, 1))
sketch10.addConstraint(Sketcher.Constraint("Vertical", 0))
sketch10.addConstraint(Sketcher.Constraint("Horizontal", 1))
sketch10.addConstraint(Sketcher.Constraint("Vertical", 2))
sketch10.addConstraint(Sketcher.Constraint("Horizontal", 3))
sketch10.addConstraint(Sketcher.Constraint("Vertical", 4))
sketch10.addConstraint(Sketcher.Constraint("Horizontal", 5))
sketch10.addConstraint(Sketcher.Constraint("Vertical", 6))
sketch10.addConstraint(Sketcher.Constraint("Horizontal", 7))
sketch10.addConstraint(Sketcher.Constraint("Vertical", 8))
sketch10.addConstraint(Sketcher.Constraint("Horizontal", 9))
sketch10.addConstraint(Sketcher.Constraint("Vertical", 10))
sketch10.addConstraint(Sketcher.Constraint("Horizontal", 11))
sketch10.addConstraint(Sketcher.Constraint("Vertical", 12))
sketch10.addConstraint(Sketcher.Constraint("Horizontal", 13))
sketch10.addConstraint(Sketcher.Constraint("Vertical", 14))
sketch10.addConstraint(Sketcher.Constraint("Horizontal", 15))
sketch10.addConstraint(Sketcher.Constraint("Horizontal", 1, 2, 4, 2))
sketch10.addConstraint(Sketcher.Constraint("Horizontal", 3, 2, 6, 2))
sketch10.addConstraint(Sketcher.Constraint("Horizontal", 9, 2, 12, 2))
sketch10.addConstraint(Sketcher.Constraint("Horizontal", 11, 2, 14, 2))
sketch10.addConstraint(Sketcher.Constraint("Vertical", 3, 2, 8, 2))
sketch10.addConstraint(Sketcher.Constraint("Vertical", 2, 2, 9, 2))
sketch10.addConstraint(Sketcher.Constraint("Equal", 3, 5))
sketch10.addConstraint(Sketcher.Constraint("Equal", 11, 13))
sketch10.addConstraint(Sketcher.Constraint("Equal", 6, 8))
sketch10.addConstraint(Sketcher.Constraint("DistanceX", 1, 1, 1, 2, Q("4 mm")))
sketch10.addConstraint(Sketcher.Constraint("DistanceY", 0, 2, 0, 1, Q("1.5 mm")))
sketch10.addConstraint(Sketcher.Constraint("DistanceY", -1, 1, 0, 2, Q("28 mm")))
sketch10.addConstraint(Sketcher.Constraint("DistanceY", -1, 1, 10, 2, Q("4 mm")))
sketch10.addConstraint(Sketcher.Constraint("DistanceX", 5, 2, 12, 2, Q("3 mm")))
sketch10.addConstraint(Sketcher.Constraint("DistanceX", 1, 2, 4, 2, Q("1.5 mm")))
sketch10.addConstraint(Sketcher.Constraint("DistanceX", 0, 2, -1, 1, Q("31.75 mm")))
pad9 = body.newObject("PartDesign::Pad", "Pad008")
pad9.Profile = sketch10
pad9.Length = 14

# Sketch on YZ plane
sketch11 = body.newObject("Sketcher::SketchObject", "Sketch010")
sketch11.AttachmentSupport = (doc.getObject("YZ_Plane"), [""])
sketch11.MapMode = "FlatFace"
sketch11.AttachmentOffset = App.Placement(Vector(0, 0, -15.25), App.Rotation())
sketch11.addGeometry(Part.LineSegment(Vector(5, 17, 0), Vector(4, 17, 0)), False)
sketch11.addGeometry(Part.LineSegment(Vector(4, 17, 0), Vector(4, 16, 0)), False)
sketch11.addGeometry(Part.LineSegment(Vector(4, 16, 0), Vector(5, 17, 0)), False)
sketch11.addConstraint(Sketcher.Constraint("Coincident", 0, 2, 1, 1))
sketch11.addConstraint(Sketcher.Constraint("Coincident", 1, 2, 2, 1))
sketch11.addConstraint(Sketcher.Constraint("Coincident", 2, 2, 0, 1))
sketch11.addConstraint(Sketcher.Constraint("Horizontal", 0))
sketch11.addConstraint(Sketcher.Constraint("Vertical", 1))
sketch11.addConstraint(Sketcher.Constraint("Equal", 0, 1))
sketch11.addConstraint(Sketcher.Constraint("DistanceX", 0, 2, 0, 1, Q("1 mm")))
sketch11.addConstraint(Sketcher.Constraint("DistanceX", -1, 1, 0, 2, Q("4 mm")))
sketch11.addConstraint(Sketcher.Constraint("DistanceY", -1, 1, 0, 2, Q("17 mm")))
pad10 = body.newObject("PartDesign::Pad", "Pad009")
pad10.Profile = sketch11
pad10.Length = 4
pad10.Reversed = True

# Sketch on YZ plane
sketch12 = body.newObject("Sketcher::SketchObject", "Sketch011")
sketch12.AttachmentSupport = (doc.getObject("YZ_Plane"), [""])
sketch12.MapMode = "FlatFace"
sketch12.AttachmentOffset = App.Placement(Vector(0, 0, -27.75), App.Rotation())
sketch12.addGeometry(Part.LineSegment(Vector(5, 17, 0), Vector(4, 17, 0)), False)
sketch12.addGeometry(Part.LineSegment(Vector(4, 17, 0), Vector(4, 16, 0)), False)
sketch12.addGeometry(Part.LineSegment(Vector(4, 16, 0), Vector(5, 17, 0)), False)
sketch12.addConstraint(Sketcher.Constraint("Coincident", 0, 2, 1, 1))
sketch12.addConstraint(Sketcher.Constraint("Coincident", 1, 2, 2, 1))
sketch12.addConstraint(Sketcher.Constraint("Coincident", 2, 2, 0, 1))
sketch12.addConstraint(Sketcher.Constraint("Horizontal", 0))
sketch12.addConstraint(Sketcher.Constraint("Vertical", 1))
sketch12.addConstraint(Sketcher.Constraint("Equal", 0, 1))
sketch12.addConstraint(Sketcher.Constraint("DistanceX", 0, 2, 0, 1, Q("1 mm")))
sketch12.addConstraint(Sketcher.Constraint("DistanceX", -1, 1, 0, 2, Q("4 mm")))
sketch12.addConstraint(Sketcher.Constraint("DistanceY", -1, 1, 0, 2, Q("17 mm")))
pad11 = body.newObject("PartDesign::Pad", "Pad010")
pad11.Profile = sketch12
pad11.Length = 4
pad11.Reversed = True

# Sketch on YZ plane
sketch13 = body.newObject("Sketcher::SketchObject", "Sketch012")
sketch13.AttachmentSupport = (doc.getObject("YZ_Plane"), [""])
sketch13.MapMode = "FlatFace"
sketch13.AttachmentOffset = App.Placement(Vector(0, 0, -22.25), App.Rotation())
sketch13.addGeometry(Part.LineSegment(Vector(28, 17, 0), Vector(27, 17, 0)), False)
sketch13.addGeometry(Part.LineSegment(Vector(27, 17, 0), Vector(28, 16, 0)), False)
sketch13.addGeometry(Part.LineSegment(Vector(28, 16, 0), Vector(28, 17, 0)), False)
sketch13.addConstraint(Sketcher.Constraint("Coincident", 0, 2, 1, 1))
sketch13.addConstraint(Sketcher.Constraint("Coincident", 1, 2, 2, 1))
sketch13.addConstraint(Sketcher.Constraint("Coincident", 2, 2, 0, 1))
sketch13.addConstraint(Sketcher.Constraint("Horizontal", 0))
sketch13.addConstraint(Sketcher.Constraint("Vertical", 2))
sketch13.addConstraint(Sketcher.Constraint("Equal", 0, 2))
sketch13.addConstraint(Sketcher.Constraint("DistanceX", 0, 2, 0, 1, Q("1 mm")))
sketch13.addConstraint(Sketcher.Constraint("DistanceX", -1, 1, 0, 2, Q("27 mm")))
sketch13.addConstraint(Sketcher.Constraint("DistanceY", -1, 1, 0, 2, Q("17 mm")))
pad12 = body.newObject("PartDesign::Pad", "Pad011")
pad12.Profile = sketch13
pad12.Length = 4
pad12.Reversed = True

# Sketch on YZ plane
sketch14 = body.newObject("Sketcher::SketchObject", "Sketch013")
sketch14.AttachmentSupport = (doc.getObject("YZ_Plane"), [""])
sketch14.MapMode = "FlatFace"
sketch14.AttachmentOffset = App.Placement(Vector(0, 0, -31.75), App.Rotation())
sketch14.addGeometry(Part.LineSegment(Vector(28, 17, 0), Vector(28, 16, 0)), False)
sketch14.addGeometry(Part.LineSegment(Vector(28, 16, 0), Vector(27, 17, 0)), False)
sketch14.addGeometry(Part.LineSegment(Vector(27, 17, 0), Vector(28, 17, 0)), False)
sketch14.addConstraint(Sketcher.Constraint("Coincident", 0, 2, 1, 1))
sketch14.addConstraint(Sketcher.Constraint("Coincident", 1, 2, 2, 1))
sketch14.addConstraint(Sketcher.Constraint("Coincident", 2, 2, 0, 1))
sketch14.addConstraint(Sketcher.Constraint("Vertical", 0))
sketch14.addConstraint(Sketcher.Constraint("Horizontal", 2))
sketch14.addConstraint(Sketcher.Constraint("Equal", 2, 0))
sketch14.addConstraint(Sketcher.Constraint("DistanceX", 2, 1, 2, 2, Q("1 mm")))
sketch14.addConstraint(Sketcher.Constraint("DistanceX", -1, 1, 0, 2, Q("28 mm")))
sketch14.addConstraint(Sketcher.Constraint("DistanceY", -1, 1, 0, 2, Q("16 mm")))
pad13 = body.newObject("PartDesign::Pad", "Pad012")
pad13.Profile = sketch14
pad13.Length = 4

doc.recompute()
